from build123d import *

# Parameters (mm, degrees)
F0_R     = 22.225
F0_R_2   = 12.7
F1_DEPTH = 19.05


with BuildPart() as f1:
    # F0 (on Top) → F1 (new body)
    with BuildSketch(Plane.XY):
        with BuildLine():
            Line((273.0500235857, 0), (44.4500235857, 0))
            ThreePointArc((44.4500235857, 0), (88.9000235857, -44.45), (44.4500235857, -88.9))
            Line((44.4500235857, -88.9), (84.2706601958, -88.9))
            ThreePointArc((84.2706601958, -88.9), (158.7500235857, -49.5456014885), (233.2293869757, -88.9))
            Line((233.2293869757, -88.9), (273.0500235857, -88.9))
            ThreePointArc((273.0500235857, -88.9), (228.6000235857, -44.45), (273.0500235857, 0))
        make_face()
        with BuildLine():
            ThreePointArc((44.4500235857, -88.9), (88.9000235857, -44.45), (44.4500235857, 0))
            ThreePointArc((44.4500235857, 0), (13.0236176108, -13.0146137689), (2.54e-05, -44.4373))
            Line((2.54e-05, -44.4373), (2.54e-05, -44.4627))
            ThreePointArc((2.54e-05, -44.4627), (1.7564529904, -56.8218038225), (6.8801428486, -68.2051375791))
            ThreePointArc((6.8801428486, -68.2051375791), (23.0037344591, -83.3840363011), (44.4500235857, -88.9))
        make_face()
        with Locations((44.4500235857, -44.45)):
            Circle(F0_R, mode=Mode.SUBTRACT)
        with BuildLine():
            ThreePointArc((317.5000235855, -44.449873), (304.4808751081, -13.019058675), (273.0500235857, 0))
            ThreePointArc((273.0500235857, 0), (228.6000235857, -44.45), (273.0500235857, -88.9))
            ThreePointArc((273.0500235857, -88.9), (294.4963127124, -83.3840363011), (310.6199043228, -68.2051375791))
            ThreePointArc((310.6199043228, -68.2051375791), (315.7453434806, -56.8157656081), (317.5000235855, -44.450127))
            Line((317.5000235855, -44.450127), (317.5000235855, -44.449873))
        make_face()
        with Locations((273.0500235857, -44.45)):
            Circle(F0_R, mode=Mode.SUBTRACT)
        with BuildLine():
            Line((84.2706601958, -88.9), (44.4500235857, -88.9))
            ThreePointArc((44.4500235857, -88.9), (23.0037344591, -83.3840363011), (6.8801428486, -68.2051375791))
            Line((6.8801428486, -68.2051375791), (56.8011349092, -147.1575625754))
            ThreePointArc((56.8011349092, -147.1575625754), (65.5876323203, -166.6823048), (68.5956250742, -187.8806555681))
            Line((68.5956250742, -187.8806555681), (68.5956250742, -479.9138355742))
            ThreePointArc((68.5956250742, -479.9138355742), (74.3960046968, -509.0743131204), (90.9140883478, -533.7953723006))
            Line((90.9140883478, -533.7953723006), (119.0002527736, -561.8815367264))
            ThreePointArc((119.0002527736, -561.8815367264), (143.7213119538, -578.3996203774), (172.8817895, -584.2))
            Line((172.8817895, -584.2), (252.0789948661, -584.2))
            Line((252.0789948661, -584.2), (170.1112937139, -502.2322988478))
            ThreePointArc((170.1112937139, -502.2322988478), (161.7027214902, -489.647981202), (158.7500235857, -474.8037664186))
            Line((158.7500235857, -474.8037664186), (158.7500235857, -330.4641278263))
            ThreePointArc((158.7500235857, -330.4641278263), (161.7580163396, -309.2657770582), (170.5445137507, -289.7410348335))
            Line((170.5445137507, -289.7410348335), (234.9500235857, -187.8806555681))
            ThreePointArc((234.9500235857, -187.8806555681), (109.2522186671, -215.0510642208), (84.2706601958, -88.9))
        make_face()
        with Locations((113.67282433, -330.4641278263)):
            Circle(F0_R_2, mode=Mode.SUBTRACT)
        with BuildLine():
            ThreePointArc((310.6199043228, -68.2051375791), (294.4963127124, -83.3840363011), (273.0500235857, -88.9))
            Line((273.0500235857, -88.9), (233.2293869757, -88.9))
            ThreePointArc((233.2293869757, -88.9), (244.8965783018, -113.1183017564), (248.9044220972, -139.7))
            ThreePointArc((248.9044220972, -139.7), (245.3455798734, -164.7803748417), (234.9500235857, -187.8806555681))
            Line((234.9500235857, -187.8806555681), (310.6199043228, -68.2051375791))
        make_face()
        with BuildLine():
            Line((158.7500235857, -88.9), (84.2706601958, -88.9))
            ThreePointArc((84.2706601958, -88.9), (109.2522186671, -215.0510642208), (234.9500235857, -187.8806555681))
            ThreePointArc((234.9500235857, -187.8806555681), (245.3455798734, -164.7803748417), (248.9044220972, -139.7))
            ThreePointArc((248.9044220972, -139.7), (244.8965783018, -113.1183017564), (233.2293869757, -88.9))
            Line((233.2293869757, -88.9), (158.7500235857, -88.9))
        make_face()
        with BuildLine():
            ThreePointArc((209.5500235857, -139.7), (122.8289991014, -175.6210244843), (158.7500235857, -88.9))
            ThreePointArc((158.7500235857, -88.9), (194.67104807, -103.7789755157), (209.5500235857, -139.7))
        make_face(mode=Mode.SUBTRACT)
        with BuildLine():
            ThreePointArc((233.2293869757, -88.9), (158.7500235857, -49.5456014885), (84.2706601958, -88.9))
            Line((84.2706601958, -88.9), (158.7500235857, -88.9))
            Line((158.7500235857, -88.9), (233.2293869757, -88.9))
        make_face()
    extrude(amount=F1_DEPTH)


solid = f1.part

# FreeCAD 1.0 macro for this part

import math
import FreeCAD as App
import Part
import Sketcher
from FreeCAD import Vector
Q = App.Units.Quantity

doc = App.newDocument("Part")
body = doc.addObject("PartDesign::Body", "Body")

# Sketch on XY plane
sketch1 = body.newObject("Sketcher::SketchObject", "Sketch")
sketch1.AttachmentSupport = (doc.getObject("XY_Plane"), [""])
sketch1.MapMode = "FlatFace"
sketch1.addGeometry([
    Part.LineSegment(Vector(170.544514, -289.741035, 0), Vector(310.619904, -68.205138, 0)),  # 0
    Part.ArcOfCircle(Part.Circle(Vector(273.050024, -44.45, 0), Vector(0, 0, 1), 44.45), math.radians(-32.304843), math.radians(-0.000164)),  # 1
    Part.LineSegment(Vector(317.500024, -44.450127, 0), Vector(317.500024, -44.449873, 0)),  # 2
    Part.ArcOfCircle(Part.Circle(Vector(273.050024, -44.45, 0), Vector(0, 0, 1), 44.45), math.radians(0.000164), math.radians(90)),  # 3
    Part.LineSegment(Vector(273.050024, 0, 0), Vector(44.450024, 0, 0)),  # 4
    Part.ArcOfCircle(Part.Circle(Vector(44.450024, -44.45, 0), Vector(0, 0, 1), 44.45), math.radians(90), math.radians(179.98363)),  # 5
    Part.LineSegment(Vector(0.000025, -44.4373, 0), Vector(0.000025, -44.4627, 0)),  # 6
    Part.ArcOfCircle(Part.Circle(Vector(44.450024, -44.45, 0), Vector(0, 0, 1), 44.45), math.radians(-179.98363), math.radians(-147.695157)),  # 7
    Part.LineSegment(Vector(6.880143, -68.205138, 0), Vector(56.801135, -147.157563, 0)),  # 8
    Part.ArcOfCircle(Part.Circle(Vector(-7.604375, -187.880656, 0), Vector(0, 0, 1), 76.2), math.radians(0), math.radians(32.304843)),  # 9
    Part.LineSegment(Vector(68.595625, -187.880656, 0), Vector(68.595625, -479.913836, 0)),  # 10
    Part.ArcOfCircle(Part.Circle(Vector(144.795625, -479.913836, 0), Vector(0, 0, 1), 76.2), math.radians(180), math.radians(225)),  # 11
    Part.LineSegment(Vector(90.914088, -533.795372, 0), Vector(119.000253, -561.881537, 0)),  # 12
    Part.ArcOfCircle(Part.Circle(Vector(172.881789, -508, 0), Vector(0, 0, 1), 76.2), math.radians(-135), math.radians(-90)),  # 13
    Part.LineSegment(Vector(172.881789, -584.2, 0), Vector(252.078995, -584.2, 0)),  # 14
    Part.LineSegment(Vector(252.078995, -584.2, 0), Vector(170.111294, -502.232299, 0)),  # 15
    Part.ArcOfCircle(Part.Circle(Vector(197.539826, -474.803766, 0), Vector(0, 0, 1), 38.789803), math.radians(-180), math.radians(-135)),  # 16
    Part.LineSegment(Vector(158.750024, -474.803766, 0), Vector(158.750024, -330.464128, 0)),  # 17
    Part.ArcOfCircle(Part.Circle(Vector(234.950024, -330.464128, 0), Vector(0, 0, 1), 76.2), math.radians(147.695157), math.radians(180)),  # 18
    Part.Circle(Vector(113.672824, -330.464128, 0), Vector(0, 0, 1), 12.7),  # 19
    Part.ArcOfCircle(Part.Circle(Vector(158.750024, -139.7, 0), Vector(0, 0, 1), 50.8), math.radians(0), math.radians(90)),  # 20
    Part.ArcOfCircle(Part.Circle(Vector(158.750024, -139.7, 0), Vector(0, 0, 1), 50.8), math.radians(90), math.radians(360)),  # 21
    Part.Circle(Vector(44.450024, -44.45, 0), Vector(0, 0, 1), 22.225),  # 22
    Part.Circle(Vector(273.050024, -44.45, 0), Vector(0, 0, 1), 22.225),  # 23
], False)
sketch1.addConstraint([
    Sketcher.Constraint("Tangent", 0, 2, 1, 1),
    Sketcher.Constraint("Coincident", 1, 2, 2, 1),
    Sketcher.Constraint("Coincident", 2, 2, 3, 1),
    Sketcher.Constraint("Tangent", 3, 2, 4, 1),
    Sketcher.Constraint("Tangent", 4, 2, 5, 1),
    Sketcher.Constraint("Coincident", 5, 2, 6, 1),
    Sketcher.Constraint("Coincident", 6, 2, 7, 1),
    Sketcher.Constraint("Tangent", 7, 2, 8, 1),
    Sketcher.Constraint("Tangent", 8, 2, 9, 2),
    Sketcher.Constraint("Tangent", 9, 1, 10, 1),
    Sketcher.Constraint("Tangent", 10, 2, 11, 1),
    Sketcher.Constraint("Tangent", 11, 2, 12, 1),
    Sketcher.Constraint("Tangent", 12, 2, 13, 1),
    Sketcher.Constraint("Tangent", 13, 2, 14, 1),
    Sketcher.Constraint("Coincident", 14, 2, 15, 1),
    Sketcher.Constraint("Tangent", 15, 2, 16, 2),
    Sketcher.Constraint("Tangent", 16, 1, 17, 1),
    Sketcher.Constraint("Tangent", 17, 2, 18, 2),
    Sketcher.Constraint("Tangent", 18, 1, 0, 1),
    Sketcher.Constraint("Tangent", 20, 1, 21, 2),
    Sketcher.Constraint("Coincident", 21, 1, 20, 2),
    Sketcher.Constraint("Vertical", 2),
    Sketcher.Constraint("Horizontal", 4),
    Sketcher.Constraint("Vertical", 6),
    Sketcher.Constraint("Vertical", 10),
    Sketcher.Constraint("Horizontal", 14),
    Sketcher.Constraint("Vertical", 17),
    Sketcher.Constraint("Coincident", 3, 3, 1, 3),
    Sketcher.Constraint("Coincident", 7, 3, 5, 3),
    Sketcher.Constraint("Coincident", 22, 3, 5, 3),
    Sketcher.Constraint("Coincident", 23, 3, 1, 3),
    Sketcher.Constraint("Equal", 3, 5),
    Sketcher.Constraint("Equal", 9, 11),
    Sketcher.Constraint("Equal", 11, 13),
    Sketcher.Constraint("Equal", 13, 18),
    Sketcher.Constraint("Equal", 22, 23),
    Sketcher.Constraint("PointOnObject", 3, 2, -1),
    Sketcher.Constraint("Parallel", 12, 15),
    Sketcher.Constraint("Horizontal", 18, 3, 19, 3),
    Sketcher.Constraint("Horizontal", 0, 2, 7, 2),
    Sketcher.Constraint("Horizontal", 21, 3, 20, 1),
    Sketcher.Constraint("Vertical", 21, 3, 16, 1),
    Sketcher.Constraint("Vertical", 17, 2, 21, 1),
    Sketcher.Constraint("Diameter", 19, Q("1 in")),
    Sketcher.Constraint("Radius", 9, Q("3 in")),
    Sketcher.Constraint("Radius", 20, Q("2 in")),
    Sketcher.Constraint("Diameter", 22, Q("1.75 in")),
    Sketcher.Constraint("DistanceX", 4, 2, 4, 1, Q("9 in")),
    Sketcher.Constraint("Radius", 1, Q("1.75 in")),
    Sketcher.Constraint("DistanceY", 13, 3, -1, 1, Q("20 in")),
    Sketcher.Constraint("Angle", 12, Q("-45 deg")),
    Sketcher.Constraint("DistanceY", 20, 3, -1, 1, Q("5.5 in")),
    Sketcher.Constraint("DistanceX", 18, 3, 1, 3, Q("1.5 in")),
    Sketcher.Constraint("DistanceY", 6, 2, 6, 1, Q("0.001 in")),
    Sketcher.Constraint("DistanceY", 5, 2, -1, 1, Q("1.7495 in")),
    Sketcher.Constraint("Radius", 16, Q("38.789803 mm")),
    Sketcher.Constraint("DistanceY", 10, 2, 10, 1, Q("292.03318 mm")),
    Sketcher.Constraint("DistanceY", 17, 1, 17, 2, Q("144.339639 mm")),
    Sketcher.Constraint("DistanceY", 15, 2, -1, 1, Q("502.232299 mm")),
    Sketcher.Constraint("DistanceX", 9, 3, 5, 3, Q("52.054399 mm")),
    Sketcher.Constraint("DistanceX", 19, 3, 18, 3, Q("121.277199 mm")),
    Sketcher.Constraint("DistanceY", 2, 1, 2, 2, Q("0.000254 mm")),
    Sketcher.Constraint("DistanceX", -1, 1, 13, 3, Q("172.881789 mm")),
    Sketcher.Constraint("DistanceY", 0, 2, 1, 2, Q("23.755011 mm")),
])
pad1 = body.newObject("PartDesign::Pad", "Pad")
pad1.Profile = sketch1
pad1.Length = Q("0.75 in")

doc.recompute()
